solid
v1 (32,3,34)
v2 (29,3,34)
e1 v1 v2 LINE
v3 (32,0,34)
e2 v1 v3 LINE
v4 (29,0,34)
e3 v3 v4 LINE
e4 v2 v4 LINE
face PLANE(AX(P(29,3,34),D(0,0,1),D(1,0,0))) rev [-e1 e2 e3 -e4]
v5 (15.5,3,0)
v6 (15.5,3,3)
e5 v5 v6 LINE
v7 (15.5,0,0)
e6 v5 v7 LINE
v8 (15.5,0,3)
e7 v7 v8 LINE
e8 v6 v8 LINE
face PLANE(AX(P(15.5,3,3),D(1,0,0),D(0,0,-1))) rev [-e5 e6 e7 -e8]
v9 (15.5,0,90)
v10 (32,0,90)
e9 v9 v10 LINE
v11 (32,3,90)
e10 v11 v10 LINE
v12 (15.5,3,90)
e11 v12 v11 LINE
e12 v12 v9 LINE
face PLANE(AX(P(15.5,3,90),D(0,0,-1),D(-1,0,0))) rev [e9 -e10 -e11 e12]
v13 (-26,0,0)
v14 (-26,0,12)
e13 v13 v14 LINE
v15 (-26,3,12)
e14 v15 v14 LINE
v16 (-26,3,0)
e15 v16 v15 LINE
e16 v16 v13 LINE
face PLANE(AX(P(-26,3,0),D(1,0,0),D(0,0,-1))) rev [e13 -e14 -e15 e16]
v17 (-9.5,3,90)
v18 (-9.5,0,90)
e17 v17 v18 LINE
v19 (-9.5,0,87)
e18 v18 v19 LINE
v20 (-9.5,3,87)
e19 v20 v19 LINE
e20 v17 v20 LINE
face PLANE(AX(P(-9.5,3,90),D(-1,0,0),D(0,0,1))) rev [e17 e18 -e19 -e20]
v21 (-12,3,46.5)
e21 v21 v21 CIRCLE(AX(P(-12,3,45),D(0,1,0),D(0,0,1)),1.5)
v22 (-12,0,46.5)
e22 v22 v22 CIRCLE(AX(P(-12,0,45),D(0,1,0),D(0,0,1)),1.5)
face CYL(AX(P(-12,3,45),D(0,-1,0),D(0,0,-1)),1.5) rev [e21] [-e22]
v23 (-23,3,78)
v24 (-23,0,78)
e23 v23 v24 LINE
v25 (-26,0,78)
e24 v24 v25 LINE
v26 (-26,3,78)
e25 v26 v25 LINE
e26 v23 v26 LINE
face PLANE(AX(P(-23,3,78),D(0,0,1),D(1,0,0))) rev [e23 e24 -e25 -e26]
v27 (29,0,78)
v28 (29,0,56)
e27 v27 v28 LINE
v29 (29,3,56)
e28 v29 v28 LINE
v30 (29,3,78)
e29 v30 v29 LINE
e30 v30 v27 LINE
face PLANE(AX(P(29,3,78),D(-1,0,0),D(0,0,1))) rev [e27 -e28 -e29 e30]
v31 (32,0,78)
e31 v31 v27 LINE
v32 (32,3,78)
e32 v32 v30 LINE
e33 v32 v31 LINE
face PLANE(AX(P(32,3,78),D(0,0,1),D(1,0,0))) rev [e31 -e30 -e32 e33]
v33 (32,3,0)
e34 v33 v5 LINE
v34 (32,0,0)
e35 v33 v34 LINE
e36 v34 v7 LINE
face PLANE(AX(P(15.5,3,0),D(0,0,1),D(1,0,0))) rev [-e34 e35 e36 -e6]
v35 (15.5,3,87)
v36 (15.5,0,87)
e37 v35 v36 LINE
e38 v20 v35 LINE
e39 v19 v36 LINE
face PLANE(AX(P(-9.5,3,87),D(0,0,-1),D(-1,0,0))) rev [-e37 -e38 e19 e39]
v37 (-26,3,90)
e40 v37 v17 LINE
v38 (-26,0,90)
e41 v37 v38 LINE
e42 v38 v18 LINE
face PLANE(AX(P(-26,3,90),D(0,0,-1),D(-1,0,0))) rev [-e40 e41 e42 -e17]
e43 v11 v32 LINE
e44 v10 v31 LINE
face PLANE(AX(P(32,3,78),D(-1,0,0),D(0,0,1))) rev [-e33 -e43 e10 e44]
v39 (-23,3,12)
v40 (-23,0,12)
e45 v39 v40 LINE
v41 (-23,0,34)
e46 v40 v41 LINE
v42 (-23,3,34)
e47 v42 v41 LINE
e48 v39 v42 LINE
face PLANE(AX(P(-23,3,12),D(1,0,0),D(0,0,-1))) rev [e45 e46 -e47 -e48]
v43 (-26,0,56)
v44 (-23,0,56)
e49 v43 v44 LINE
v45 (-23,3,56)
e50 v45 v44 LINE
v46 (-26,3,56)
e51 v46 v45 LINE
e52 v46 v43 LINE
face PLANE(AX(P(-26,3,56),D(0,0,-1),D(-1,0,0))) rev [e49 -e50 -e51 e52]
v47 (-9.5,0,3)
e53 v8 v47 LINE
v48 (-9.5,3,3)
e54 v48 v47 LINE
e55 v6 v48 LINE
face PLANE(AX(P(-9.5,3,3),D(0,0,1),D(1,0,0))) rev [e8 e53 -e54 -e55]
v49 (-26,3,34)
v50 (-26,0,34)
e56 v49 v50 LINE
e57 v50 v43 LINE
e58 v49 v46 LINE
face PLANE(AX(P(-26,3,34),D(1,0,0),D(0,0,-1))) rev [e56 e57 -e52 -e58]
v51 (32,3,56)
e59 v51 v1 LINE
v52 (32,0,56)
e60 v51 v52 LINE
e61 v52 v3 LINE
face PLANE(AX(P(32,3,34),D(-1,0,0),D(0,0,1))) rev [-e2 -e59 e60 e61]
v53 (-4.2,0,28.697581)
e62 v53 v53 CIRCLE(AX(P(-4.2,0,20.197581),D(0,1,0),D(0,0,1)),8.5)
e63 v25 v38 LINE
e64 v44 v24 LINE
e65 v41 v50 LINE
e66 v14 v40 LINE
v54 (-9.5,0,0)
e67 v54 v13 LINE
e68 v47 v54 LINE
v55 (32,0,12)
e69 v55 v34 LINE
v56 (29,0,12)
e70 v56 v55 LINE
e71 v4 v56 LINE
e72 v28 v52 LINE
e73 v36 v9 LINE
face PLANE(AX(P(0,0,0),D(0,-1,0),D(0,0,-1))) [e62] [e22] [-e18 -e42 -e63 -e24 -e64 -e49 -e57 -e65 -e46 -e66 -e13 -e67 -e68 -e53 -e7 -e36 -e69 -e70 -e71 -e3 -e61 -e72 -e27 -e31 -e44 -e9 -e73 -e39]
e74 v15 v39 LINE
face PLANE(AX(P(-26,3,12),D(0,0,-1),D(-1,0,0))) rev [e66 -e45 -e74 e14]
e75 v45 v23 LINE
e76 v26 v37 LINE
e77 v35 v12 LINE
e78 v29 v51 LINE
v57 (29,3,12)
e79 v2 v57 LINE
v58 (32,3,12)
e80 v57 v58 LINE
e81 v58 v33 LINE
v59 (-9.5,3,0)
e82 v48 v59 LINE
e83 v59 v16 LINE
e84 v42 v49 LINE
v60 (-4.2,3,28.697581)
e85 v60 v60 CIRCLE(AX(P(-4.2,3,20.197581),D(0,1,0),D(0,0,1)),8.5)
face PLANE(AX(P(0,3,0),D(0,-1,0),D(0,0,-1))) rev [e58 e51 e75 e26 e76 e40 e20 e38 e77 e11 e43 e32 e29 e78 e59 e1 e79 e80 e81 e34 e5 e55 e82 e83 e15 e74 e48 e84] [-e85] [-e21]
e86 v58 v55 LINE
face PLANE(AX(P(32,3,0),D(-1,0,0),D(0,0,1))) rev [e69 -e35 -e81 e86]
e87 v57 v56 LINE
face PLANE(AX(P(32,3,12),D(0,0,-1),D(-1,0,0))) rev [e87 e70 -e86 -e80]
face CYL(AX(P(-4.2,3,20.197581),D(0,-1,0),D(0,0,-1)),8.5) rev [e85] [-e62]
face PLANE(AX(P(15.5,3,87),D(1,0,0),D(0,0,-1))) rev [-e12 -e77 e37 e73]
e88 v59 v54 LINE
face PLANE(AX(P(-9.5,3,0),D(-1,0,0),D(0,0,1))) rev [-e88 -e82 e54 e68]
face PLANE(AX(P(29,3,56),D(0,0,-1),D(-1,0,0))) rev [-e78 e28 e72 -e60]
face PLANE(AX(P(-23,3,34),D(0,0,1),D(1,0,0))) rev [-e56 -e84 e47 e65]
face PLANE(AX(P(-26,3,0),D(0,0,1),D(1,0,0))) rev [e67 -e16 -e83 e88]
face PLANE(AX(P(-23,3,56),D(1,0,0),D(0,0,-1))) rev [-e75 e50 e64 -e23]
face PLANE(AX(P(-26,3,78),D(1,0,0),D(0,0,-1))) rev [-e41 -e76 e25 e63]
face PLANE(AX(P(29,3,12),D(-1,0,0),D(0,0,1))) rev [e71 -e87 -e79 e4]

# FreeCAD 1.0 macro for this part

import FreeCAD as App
import Part
import Sketcher

doc = App.newDocument("Part")
params = doc.addObject("Spreadsheet::Sheet", "Params")
for row, (alias, value) in enumerate([
    ("sketch1_diameter", "3 mm"),
    ("sketch1_diameter2", "17 mm"),
    ("sketch1_width", "25 mm"),
    ("sketch1_width2", "3 mm"),
    ("sketch1_height", "12 mm"),
    ("pad1_length", "3 mm"),
], start=1):
    params.set(f"A{row}", alias)
    params.set(f"B{row}", "=" + value)
    params.setAlias(f"B{row}", alias)

body = doc.addObject("PartDesign::Body", "Body")

# Sketch on XZ plane
sketch1 = body.newObject("Sketcher::SketchObject", "Sketch")
sketch1.AttachmentSupport = (doc.getObject("XZ_Plane"), [""])
sketch1.MapMode = "FlatFace"
sketch1.addGeometry(Part.LineSegment(App.Vector(-26, 90, 0), App.Vector(-9.5, 90, 0)), False)
sketch1.addGeometry(Part.LineSegment(App.Vector(-9.5, 90, 0), App.Vector(-9.5, 87, 0)), False)
sketch1.addGeometry(Part.LineSegment(App.Vector(-9.5, 87, 0), App.Vector(15.5, 87, 0)), False)
sketch1.addGeometry(Part.LineSegment(App.Vector(15.5, 87, 0), App.Vector(15.5, 90, 0)), False)
sketch1.addGeometry(Part.LineSegment(App.Vector(15.5, 90, 0), App.Vector(32, 90, 0)), False)
sketch1.addGeometry(Part.LineSegment(App.Vector(32, 90, 0), App.Vector(32, 78, 0)), False)
sketch1.addGeometry(Part.LineSegment(App.Vector(32, 78, 0), App.Vector(29, 78, 0)), False)
sketch1.addGeometry(Part.LineSegment(App.Vector(29, 78, 0), App.Vector(29, 56, 0)), False)
sketch1.addGeometry(Part.LineSegment(App.Vector(29, 56, 0), App.Vector(32, 56, 0)), False)
sketch1.addGeometry(Part.LineSegment(App.Vector(32, 56, 0), App.Vector(32, 34, 0)), False)
sketch1.addGeometry(Part.LineSegment(App.Vector(32, 34, 0), App.Vector(29, 34, 0)), False)
sketch1.addGeometry(Part.LineSegment(App.Vector(29, 34, 0), App.Vector(29, 12, 0)), False)
sketch1.addGeometry(Part.LineSegment(App.Vector(29, 12, 0), App.Vector(32, 12, 0)), False)
sketch1.addGeometry(Part.LineSegment(App.Vector(32, 12, 0), App.Vector(32, 0, 0)), False)
sketch1.addGeometry(Part.LineSegment(App.Vector(32, 0, 0), App.Vector(15.5, 0, 0)), False)
sketch1.addGeometry(Part.LineSegment(App.Vector(15.5, 0, 0), App.Vector(15.5, 3, 0)), False)
sketch1.addGeometry(Part.LineSegment(App.Vector(15.5, 3, 0), App.Vector(-9.5, 3, 0)), False)
sketch1.addGeometry(Part.LineSegment(App.Vector(-9.5, 3, 0), App.Vector(-9.5, 0, 0)), False)
sketch1.addGeometry(Part.LineSegment(App.Vector(-9.5, 0, 0), App.Vector(-26, 0, 0)), False)
sketch1.addGeometry(Part.LineSegment(App.Vector(-26, 0, 0), App.Vector(-26, 12, 0)), False)
sketch1.addGeometry(Part.LineSegment(App.Vector(-26, 12, 0), App.Vector(-23, 12, 0)), False)
sketch1.addGeometry(Part.LineSegment(App.Vector(-23, 12, 0), App.Vector(-23, 34, 0)), False)
sketch1.addGeometry(Part.LineSegment(App.Vector(-23, 34, 0), App.Vector(-26, 34, 0)), False)
sketch1.addGeometry(Part.LineSegment(App.Vector(-26, 34, 0), App.Vector(-26, 56, 0)), False)
sketch1.addGeometry(Part.LineSegment(App.Vector(-26, 56, 0), App.Vector(-23, 56, 0)), False)
sketch1.addGeometry(Part.LineSegment(App.Vector(-23, 56, 0), App.Vector(-23, 78, 0)), False)
sketch1.addGeometry(Part.LineSegment(App.Vector(-23, 78, 0), App.Vector(-26, 78, 0)), False)
sketch1.addGeometry(Part.LineSegment(App.Vector(-26, 78, 0), App.Vector(-26, 90, 0)), False)
sketch1.addGeometry(Part.Circle(App.Vector(-12, 45, 0), App.Vector(0, 0, 1), 1.5), False)
sketch1.addGeometry(Part.Circle(App.Vector(-4.2, 20.2, 0), App.Vector(0, 0, 1), 8.5), False)
sketch1.addConstraint(Sketcher.Constraint("Coincident", 0, 2, 1, 1))
sketch1.addConstraint(Sketcher.Constraint("Coincident", 1, 2, 2, 1))
sketch1.addConstraint(Sketcher.Constraint("Coincident", 2, 2, 3, 1))
sketch1.addConstraint(Sketcher.Constraint("Coincident", 3, 2, 4, 1))
sketch1.addConstraint(Sketcher.Constraint("Coincident", 4, 2, 5, 1))
sketch1.addConstraint(Sketcher.Constraint("Coincident", 5, 2, 6, 1))
sketch1.addConstraint(Sketcher.Constraint("Coincident", 6, 2, 7, 1))
sketch1.addConstraint(Sketcher.Constraint("Coincident", 7, 2, 8, 1))
sketch1.addConstraint(Sketcher.Constraint("Coincident", 8, 2, 9, 1))
sketch1.addConstraint(Sketcher.Constraint("Coincident", 9, 2, 10, 1))
sketch1.addConstraint(Sketcher.Constraint("Coincident", 10, 2, 11, 1))
sketch1.addConstraint(Sketcher.Constraint("Coincident", 11, 2, 12, 1))
sketch1.addConstraint(Sketcher.Constraint("Coincident", 12, 2, 13, 1))
sketch1.addConstraint(Sketcher.Constraint("Coincident", 13, 2, 14, 1))
sketch1.addConstraint(Sketcher.Constraint("Coincident", 14, 2, 15, 1))
sketch1.addConstraint(Sketcher.Constraint("Coincident", 15, 2, 16, 1))
sketch1.addConstraint(Sketcher.Constraint("Coincident", 16, 2, 17, 1))
sketch1.addConstraint(Sketcher.Constraint("Coincident", 17, 2, 18, 1))
sketch1.addConstraint(Sketcher.Constraint("Coincident", 18, 2, 19, 1))
sketch1.addConstraint(Sketcher.Constraint("Coincident", 19, 2, 20, 1))
sketch1.addConstraint(Sketcher.Constraint("Coincident", 20, 2, 21, 1))
sketch1.addConstraint(Sketcher.Constraint("Coincident", 21, 2, 22, 1))
sketch1.addConstraint(Sketcher.Constraint("Coincident", 22, 2, 23, 1))
sketch1.addConstraint(Sketcher.Constraint("Coincident", 23, 2, 24, 1))
sketch1.addConstraint(Sketcher.Constraint("Coincident", 24, 2, 25, 1))
sketch1.addConstraint(Sketcher.Constraint("Coincident", 25, 2, 26, 1))
sketch1.addConstraint(Sketcher.Constraint("Coincident", 26, 2, 27, 1))
sketch1.addConstraint(Sketcher.Constraint("Coincident", 27, 2, 0, 1))
sketch1.addConstraint(Sketcher.Constraint("Horizontal", 0))
sketch1.addConstraint(Sketcher.Constraint("Vertical", 1))
sketch1.addConstraint(Sketcher.Constraint("Horizontal", 2))
sketch1.addConstraint(Sketcher.Constraint("Vertical", 3))
sketch1.addConstraint(Sketcher.Constraint("Horizontal", 4))
sketch1.addConstraint(Sketcher.Constraint("Vertical", 5))
sketch1.addConstraint(Sketcher.Constraint("Horizontal", 6))
sketch1.addConstraint(Sketcher.Constraint("Vertical", 7))
sketch1.addConstraint(Sketcher.Constraint("Horizontal", 8))
sketch1.addConstraint(Sketcher.Constraint("Vertical", 9))
sketch1.addConstraint(Sketcher.Constraint("Horizontal", 10))
sketch1.addConstraint(Sketcher.Constraint("Vertical", 11))
sketch1.addConstraint(Sketcher.Constraint("Horizontal", 12))
sketch1.addConstraint(Sketcher.Constraint("Vertical", 13))
sketch1.addConstraint(Sketcher.Constraint("Horizontal", 14))
sketch1.addConstraint(Sketcher.Constraint("Vertical", 15))
sketch1.addConstraint(Sketcher.Constraint("Horizontal", 16))
sketch1.addConstraint(Sketcher.Constraint("Vertical", 17))
sketch1.addConstraint(Sketcher.Constraint("Horizontal", 18))
sketch1.addConstraint(Sketcher.Constraint("Vertical", 19))
sketch1.addConstraint(Sketcher.Constraint("Horizontal", 20))
sketch1.addConstraint(Sketcher.Constraint("Vertical", 21))
sketch1.addConstraint(Sketcher.Constraint("Horizontal", 22))
sketch1.addConstraint(Sketcher.Constraint("Vertical", 23))
sketch1.addConstraint(Sketcher.Constraint("Horizontal", 24))
sketch1.addConstraint(Sketcher.Constraint("Vertical", 25))
sketch1.addConstraint(Sketcher.Constraint("Horizontal", 26))
sketch1.addConstraint(Sketcher.Constraint("Vertical", 27))
sketch1.addConstraint(Sketcher.Constraint("PointOnObject", 13, 2, -1))
sketch1.addConstraint(Sketcher.Constraint("PointOnObject", 17, 2, -1))
sketch1.addConstraint(Sketcher.Constraint("Horizontal", 0, 2, 3, 2))
sketch1.addConstraint(Sketcher.Constraint("Horizontal", 12, 2, 19, 2))
sketch1.addConstraint(Sketcher.Constraint("Horizontal", 10, 2, 21, 2))
sketch1.addConstraint(Sketcher.Constraint("Horizontal", 8, 2, 23, 2))
sketch1.addConstraint(Sketcher.Constraint("Horizontal", 6, 2, 25, 2))
sketch1.addConstraint(Sketcher.Constraint("Vertical", 5, 2, 8, 2))
sketch1.addConstraint(Sketcher.Constraint("Vertical", 7, 2, 10, 2))
sketch1.addConstraint(Sketcher.Constraint("Vertical", 9, 2, 12, 2))
sketch1.addConstraint(Sketcher.Constraint("Vertical", 3, 2, 14, 2))
sketch1.addConstraint(Sketcher.Constraint("Vertical", 1, 2, 16, 2))
sketch1.addConstraint(Sketcher.Constraint("Vertical", 19, 2, 22, 2))
sketch1.addConstraint(Sketcher.Constraint("Vertical", 21, 2, 24, 2))
sketch1.addConstraint(Sketcher.Constraint("Vertical", 23, 2, 26, 2))
sketch1.addConstraint(Sketcher.Constraint("Equal", 0, 4))
sketch1.addConstraint(Sketcher.Constraint("Equal", 12, 20))
sketch1.addConstraint(Sketcher.Constraint("Equal", 26, 1))
sketch1.addConstraint(Sketcher.Constraint("Equal", 7, 9))
sketch1.addConstraint(Sketcher.Constraint("Equal", 9, 11))
sketch1.addConstraint(Sketcher.Constraint("Equal", 5, 13))
sketch1.addConstraint(Sketcher.Constraint("Equal", 3, 15))
sketch1.addConstraint(Sketcher.Constraint("Diameter", 28, 3.0))
sketch1.addConstraint(Sketcher.Constraint("Diameter", 29, 17.0))
sketch1.addConstraint(Sketcher.Constraint("DistanceX", 2, 1, 2, 2, 25.0))
sketch1.addConstraint(Sketcher.Constraint("DistanceX", 6, 2, 6, 1, 3.0))
sketch1.addConstraint(Sketcher.Constraint("DistanceY", 5, 2, 5, 1, 12.0))
sketch1.addConstraint(Sketcher.Constraint("DistanceY", 7, 2, 7, 1, 22.0))
sketch1.addConstraint(Sketcher.Constraint("DistanceX", 0, 1, 0, 2, 16.5))
sketch1.addConstraint(Sketcher.Constraint("DistanceX", 28, 3, -1, 1, 12.0))
sketch1.addConstraint(Sketcher.Constraint("DistanceY", -1, 1, 28, 3, 45.0))
sketch1.addConstraint(Sketcher.Constraint("DistanceX", -1, 1, 4, 2, 32.0))
sketch1.addConstraint(Sketcher.Constraint("DistanceX", 29, 3, -1, 1, 4.2))
sketch1.addConstraint(Sketcher.Constraint("DistanceY", -1, 1, 29, 3, 20.197581))
sketch1.setExpression("Constraints[78]", "Params.sketch1_diameter")
sketch1.setExpression("Constraints[79]", "Params.sketch1_diameter2")
sketch1.setExpression("Constraints[80]", "Params.sketch1_width")
sketch1.setExpression("Constraints[81]", "Params.sketch1_width2")
sketch1.setExpression("Constraints[82]", "Params.sketch1_height")
pad1 = body.newObject("PartDesign::Pad", "Pad")
pad1.Profile = sketch1
pad1.setExpression("Length", "Params.pad1_length")
pad1.Reversed = True

doc.recompute()
